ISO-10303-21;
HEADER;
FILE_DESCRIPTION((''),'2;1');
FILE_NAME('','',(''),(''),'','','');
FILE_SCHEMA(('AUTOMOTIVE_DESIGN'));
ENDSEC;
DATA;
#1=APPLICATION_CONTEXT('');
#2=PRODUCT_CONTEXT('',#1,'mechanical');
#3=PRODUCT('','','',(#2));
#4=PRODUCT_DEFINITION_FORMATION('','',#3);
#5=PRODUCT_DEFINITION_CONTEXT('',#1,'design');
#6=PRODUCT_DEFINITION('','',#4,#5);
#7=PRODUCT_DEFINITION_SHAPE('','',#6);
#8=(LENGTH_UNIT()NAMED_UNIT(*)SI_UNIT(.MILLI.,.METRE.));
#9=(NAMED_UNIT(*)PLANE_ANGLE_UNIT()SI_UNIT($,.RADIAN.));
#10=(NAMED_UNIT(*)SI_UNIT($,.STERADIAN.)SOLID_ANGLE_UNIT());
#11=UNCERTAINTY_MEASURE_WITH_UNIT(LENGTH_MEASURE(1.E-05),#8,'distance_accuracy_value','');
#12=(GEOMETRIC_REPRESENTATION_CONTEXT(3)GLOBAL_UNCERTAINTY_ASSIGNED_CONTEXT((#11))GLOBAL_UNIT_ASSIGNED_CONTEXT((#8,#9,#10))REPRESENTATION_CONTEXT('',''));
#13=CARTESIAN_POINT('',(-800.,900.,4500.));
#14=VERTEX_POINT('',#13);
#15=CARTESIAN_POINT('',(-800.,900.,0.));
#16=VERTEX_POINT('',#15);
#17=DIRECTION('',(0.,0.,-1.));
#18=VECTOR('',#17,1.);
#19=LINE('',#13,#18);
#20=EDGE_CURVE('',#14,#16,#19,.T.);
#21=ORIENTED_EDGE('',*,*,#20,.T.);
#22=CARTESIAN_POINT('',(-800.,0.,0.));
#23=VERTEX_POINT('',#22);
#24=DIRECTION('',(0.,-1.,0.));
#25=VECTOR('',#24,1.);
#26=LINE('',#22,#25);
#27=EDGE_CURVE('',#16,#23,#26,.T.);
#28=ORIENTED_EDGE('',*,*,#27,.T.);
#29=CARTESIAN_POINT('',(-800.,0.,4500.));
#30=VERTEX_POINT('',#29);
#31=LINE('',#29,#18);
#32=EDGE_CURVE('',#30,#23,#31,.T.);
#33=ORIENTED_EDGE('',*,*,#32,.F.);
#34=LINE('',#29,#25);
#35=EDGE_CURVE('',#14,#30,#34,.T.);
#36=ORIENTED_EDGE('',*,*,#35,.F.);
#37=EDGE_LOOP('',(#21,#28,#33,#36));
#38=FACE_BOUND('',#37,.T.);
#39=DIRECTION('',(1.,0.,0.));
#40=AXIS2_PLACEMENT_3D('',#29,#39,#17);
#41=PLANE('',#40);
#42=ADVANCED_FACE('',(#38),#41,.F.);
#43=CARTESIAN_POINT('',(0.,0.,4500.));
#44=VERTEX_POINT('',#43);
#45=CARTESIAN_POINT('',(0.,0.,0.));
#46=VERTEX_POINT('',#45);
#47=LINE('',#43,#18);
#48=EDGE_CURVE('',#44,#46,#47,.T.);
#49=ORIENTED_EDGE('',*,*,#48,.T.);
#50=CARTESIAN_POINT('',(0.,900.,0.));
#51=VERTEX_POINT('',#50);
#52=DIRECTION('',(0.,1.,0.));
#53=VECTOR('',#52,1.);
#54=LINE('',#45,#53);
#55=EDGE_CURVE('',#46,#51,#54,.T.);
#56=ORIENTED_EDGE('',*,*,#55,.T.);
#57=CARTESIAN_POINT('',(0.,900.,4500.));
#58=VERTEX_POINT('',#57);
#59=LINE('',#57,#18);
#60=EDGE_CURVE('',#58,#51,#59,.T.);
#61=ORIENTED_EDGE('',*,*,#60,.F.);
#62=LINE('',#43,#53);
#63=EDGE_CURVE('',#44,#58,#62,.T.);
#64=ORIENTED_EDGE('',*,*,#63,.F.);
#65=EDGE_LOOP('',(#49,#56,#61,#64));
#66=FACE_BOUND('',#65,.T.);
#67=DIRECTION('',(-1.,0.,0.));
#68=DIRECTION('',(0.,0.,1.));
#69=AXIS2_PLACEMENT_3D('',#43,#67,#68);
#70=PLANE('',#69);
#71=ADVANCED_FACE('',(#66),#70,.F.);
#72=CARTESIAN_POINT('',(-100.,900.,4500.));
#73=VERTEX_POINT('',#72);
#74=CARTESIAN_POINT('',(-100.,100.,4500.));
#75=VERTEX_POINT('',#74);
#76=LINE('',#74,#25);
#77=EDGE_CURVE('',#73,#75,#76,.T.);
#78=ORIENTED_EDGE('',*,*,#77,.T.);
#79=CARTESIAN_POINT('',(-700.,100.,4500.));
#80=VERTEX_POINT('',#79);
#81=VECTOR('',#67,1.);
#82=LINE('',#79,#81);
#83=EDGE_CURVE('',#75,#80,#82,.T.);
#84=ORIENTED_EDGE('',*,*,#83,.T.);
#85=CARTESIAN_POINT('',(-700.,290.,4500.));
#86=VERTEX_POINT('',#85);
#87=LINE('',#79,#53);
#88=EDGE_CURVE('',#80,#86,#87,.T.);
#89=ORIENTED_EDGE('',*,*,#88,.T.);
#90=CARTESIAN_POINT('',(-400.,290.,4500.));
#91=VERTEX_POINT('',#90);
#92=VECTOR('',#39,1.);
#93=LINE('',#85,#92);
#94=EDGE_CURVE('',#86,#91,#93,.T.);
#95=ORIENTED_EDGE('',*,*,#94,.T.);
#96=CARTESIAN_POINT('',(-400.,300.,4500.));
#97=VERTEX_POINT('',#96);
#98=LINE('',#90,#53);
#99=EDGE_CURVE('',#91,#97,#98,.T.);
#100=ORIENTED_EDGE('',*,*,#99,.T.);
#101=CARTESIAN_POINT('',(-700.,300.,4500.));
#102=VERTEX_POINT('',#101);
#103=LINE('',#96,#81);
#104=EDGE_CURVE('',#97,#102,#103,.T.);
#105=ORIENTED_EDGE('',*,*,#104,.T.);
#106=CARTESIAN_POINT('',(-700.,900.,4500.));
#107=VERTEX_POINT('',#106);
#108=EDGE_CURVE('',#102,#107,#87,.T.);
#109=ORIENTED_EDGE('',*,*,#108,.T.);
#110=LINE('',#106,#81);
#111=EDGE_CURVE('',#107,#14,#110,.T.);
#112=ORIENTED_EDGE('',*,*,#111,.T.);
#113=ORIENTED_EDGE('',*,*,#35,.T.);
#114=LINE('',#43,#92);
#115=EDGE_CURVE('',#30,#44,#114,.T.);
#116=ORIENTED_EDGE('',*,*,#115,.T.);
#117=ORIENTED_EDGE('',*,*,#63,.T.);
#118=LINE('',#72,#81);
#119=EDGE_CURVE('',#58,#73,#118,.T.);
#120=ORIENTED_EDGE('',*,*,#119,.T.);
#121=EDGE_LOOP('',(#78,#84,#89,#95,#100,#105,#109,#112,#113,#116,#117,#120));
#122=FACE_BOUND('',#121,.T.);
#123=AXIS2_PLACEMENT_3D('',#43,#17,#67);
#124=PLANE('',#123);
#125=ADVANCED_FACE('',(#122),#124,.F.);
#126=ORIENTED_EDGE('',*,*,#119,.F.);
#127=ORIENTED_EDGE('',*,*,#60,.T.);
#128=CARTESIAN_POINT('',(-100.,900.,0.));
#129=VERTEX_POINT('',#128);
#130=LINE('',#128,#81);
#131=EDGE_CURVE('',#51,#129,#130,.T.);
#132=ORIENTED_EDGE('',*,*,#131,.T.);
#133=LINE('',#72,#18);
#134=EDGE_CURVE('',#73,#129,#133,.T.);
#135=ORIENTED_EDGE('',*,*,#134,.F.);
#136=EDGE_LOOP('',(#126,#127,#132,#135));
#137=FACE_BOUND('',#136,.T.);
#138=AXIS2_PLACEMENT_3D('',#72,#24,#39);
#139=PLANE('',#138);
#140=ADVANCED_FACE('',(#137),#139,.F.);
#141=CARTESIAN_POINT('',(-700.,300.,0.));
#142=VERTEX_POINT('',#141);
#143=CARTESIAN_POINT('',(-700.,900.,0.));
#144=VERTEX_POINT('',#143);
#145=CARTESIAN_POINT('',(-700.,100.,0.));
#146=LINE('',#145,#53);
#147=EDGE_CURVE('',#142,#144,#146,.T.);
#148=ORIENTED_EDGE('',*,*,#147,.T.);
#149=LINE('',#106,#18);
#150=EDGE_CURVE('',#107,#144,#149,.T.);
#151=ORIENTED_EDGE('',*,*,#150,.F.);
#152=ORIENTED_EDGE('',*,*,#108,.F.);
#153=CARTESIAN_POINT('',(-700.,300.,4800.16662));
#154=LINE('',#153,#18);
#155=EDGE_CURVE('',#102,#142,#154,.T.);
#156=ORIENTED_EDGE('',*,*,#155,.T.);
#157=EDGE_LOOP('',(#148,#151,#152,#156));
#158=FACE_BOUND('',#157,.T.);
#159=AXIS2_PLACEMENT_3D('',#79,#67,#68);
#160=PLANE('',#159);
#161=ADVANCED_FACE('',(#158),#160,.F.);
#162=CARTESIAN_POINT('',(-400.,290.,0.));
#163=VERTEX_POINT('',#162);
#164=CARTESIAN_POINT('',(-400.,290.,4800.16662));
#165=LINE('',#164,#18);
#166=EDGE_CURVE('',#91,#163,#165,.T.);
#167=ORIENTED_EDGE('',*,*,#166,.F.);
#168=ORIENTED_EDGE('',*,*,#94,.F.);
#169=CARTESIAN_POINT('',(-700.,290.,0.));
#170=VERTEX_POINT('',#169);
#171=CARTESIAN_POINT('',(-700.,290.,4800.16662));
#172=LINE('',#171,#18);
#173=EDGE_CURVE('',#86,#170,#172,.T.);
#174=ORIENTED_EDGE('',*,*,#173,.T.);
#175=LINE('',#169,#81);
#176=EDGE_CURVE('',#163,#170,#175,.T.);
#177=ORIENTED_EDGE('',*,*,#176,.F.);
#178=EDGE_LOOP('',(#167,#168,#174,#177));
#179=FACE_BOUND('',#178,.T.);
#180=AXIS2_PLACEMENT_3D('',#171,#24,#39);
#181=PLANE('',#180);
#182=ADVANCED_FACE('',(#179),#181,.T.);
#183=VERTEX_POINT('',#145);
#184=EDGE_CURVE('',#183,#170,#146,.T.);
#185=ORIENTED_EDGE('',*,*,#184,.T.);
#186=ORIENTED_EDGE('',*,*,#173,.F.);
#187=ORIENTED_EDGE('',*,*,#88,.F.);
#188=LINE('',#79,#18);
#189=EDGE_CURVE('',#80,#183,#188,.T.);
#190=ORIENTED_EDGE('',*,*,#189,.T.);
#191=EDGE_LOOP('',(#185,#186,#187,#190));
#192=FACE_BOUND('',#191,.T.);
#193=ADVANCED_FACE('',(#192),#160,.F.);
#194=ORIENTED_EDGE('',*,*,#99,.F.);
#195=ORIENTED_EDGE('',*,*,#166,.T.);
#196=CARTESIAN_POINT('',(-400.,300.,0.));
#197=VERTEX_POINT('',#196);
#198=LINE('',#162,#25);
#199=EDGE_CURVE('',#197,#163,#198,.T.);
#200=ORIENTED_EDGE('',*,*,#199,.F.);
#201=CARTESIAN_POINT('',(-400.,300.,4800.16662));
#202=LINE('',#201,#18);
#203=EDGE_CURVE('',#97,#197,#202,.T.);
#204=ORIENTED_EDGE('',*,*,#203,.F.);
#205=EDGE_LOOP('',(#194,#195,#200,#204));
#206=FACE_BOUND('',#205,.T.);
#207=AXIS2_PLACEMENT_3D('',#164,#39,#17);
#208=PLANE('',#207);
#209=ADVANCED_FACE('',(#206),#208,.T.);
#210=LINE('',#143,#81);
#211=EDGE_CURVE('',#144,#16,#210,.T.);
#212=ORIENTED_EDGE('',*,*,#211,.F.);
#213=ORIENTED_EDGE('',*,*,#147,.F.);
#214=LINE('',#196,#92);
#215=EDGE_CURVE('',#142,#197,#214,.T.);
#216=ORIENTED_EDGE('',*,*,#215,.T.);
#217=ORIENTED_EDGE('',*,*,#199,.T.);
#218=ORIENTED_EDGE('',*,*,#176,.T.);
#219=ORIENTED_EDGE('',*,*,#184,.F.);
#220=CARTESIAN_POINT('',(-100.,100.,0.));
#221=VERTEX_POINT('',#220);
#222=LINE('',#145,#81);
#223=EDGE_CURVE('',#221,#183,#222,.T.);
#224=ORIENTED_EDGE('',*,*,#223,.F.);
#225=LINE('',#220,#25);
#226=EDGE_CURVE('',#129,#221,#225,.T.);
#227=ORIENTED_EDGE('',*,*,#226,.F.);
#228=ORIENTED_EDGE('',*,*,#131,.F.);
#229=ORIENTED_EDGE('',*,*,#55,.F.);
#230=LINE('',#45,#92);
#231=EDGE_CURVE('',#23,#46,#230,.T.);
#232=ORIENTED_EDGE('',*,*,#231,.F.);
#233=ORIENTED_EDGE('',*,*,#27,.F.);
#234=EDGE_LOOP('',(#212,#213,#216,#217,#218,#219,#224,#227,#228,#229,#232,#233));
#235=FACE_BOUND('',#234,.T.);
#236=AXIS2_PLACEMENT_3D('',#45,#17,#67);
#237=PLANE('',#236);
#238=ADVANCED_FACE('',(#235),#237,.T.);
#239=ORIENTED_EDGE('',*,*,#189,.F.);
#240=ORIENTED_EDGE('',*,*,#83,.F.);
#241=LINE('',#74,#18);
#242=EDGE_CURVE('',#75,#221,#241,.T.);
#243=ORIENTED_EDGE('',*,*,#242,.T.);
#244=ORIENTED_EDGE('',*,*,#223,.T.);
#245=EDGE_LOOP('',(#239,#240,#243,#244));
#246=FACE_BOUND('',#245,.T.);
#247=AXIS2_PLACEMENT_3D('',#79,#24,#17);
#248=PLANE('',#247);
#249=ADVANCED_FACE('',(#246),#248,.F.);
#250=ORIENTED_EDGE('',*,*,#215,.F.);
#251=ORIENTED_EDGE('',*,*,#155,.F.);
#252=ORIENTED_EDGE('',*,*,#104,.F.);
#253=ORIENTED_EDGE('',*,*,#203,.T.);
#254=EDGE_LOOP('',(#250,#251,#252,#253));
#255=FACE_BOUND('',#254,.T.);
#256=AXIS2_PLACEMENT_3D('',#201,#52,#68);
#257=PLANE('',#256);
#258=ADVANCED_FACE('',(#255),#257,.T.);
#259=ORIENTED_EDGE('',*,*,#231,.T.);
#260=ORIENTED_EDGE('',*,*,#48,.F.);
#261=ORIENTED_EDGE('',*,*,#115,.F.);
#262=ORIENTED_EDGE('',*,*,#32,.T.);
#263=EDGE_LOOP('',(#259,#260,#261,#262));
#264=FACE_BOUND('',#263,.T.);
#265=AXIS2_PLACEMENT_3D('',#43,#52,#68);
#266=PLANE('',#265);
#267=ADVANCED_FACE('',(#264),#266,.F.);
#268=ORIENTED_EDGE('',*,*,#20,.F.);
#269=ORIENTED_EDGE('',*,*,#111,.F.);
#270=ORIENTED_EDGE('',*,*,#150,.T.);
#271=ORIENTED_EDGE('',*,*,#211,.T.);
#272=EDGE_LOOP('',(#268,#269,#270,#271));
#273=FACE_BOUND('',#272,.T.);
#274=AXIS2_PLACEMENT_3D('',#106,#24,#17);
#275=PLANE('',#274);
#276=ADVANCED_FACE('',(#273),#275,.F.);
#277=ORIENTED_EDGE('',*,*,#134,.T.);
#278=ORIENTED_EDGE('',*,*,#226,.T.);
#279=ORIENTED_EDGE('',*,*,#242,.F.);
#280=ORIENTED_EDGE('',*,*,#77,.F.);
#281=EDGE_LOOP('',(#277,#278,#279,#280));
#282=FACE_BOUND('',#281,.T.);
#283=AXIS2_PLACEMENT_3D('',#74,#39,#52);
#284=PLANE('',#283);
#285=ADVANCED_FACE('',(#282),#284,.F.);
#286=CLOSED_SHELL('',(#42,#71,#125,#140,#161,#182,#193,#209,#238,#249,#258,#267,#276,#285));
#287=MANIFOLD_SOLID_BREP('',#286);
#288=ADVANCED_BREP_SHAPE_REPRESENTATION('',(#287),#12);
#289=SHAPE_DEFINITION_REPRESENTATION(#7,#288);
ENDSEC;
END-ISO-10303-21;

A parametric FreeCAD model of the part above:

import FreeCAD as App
import Part
import Sketcher
from FreeCAD import Vector
Q = App.Units.Quantity


def add_polygon(sketch, points):
    """Adds a closed chain of lines whose ends are joined by coincident constraints."""
    first, n = sketch.GeometryCount, len(points)
    for a, b in zip(points, points[1:] + points[:1]):
        sketch.addGeometry(Part.LineSegment(App.Vector(*a, 0), App.Vector(*b, 0)), False)
    for i in range(n):
        sketch.addConstraint(Sketcher.Constraint("Coincident", first + i, 2, first + (i + 1) % n, 1))

doc = App.newDocument("Part")
body = doc.addObject("PartDesign::Body", "Body")

sketch1 = body.newObject("Sketcher::SketchObject", "Sketch")
sketch1.AttachmentSupport = (doc.getObject("XY_Plane"), [""])
sketch1.MapMode = "FlatFace"
add_polygon(sketch1, [(-800, 0), (0, 0), (0, 900), (-100, 900), (-100, 100), (-700, 100), (-700, 900), (-800, 900)])
sketch1.addConstraint(Sketcher.Constraint("Horizontal", 0))
sketch1.addConstraint(Sketcher.Constraint("Vertical", 1))
sketch1.addConstraint(Sketcher.Constraint("Horizontal", 2))
sketch1.addConstraint(Sketcher.Constraint("Vertical", 3))
sketch1.addConstraint(Sketcher.Constraint("Horizontal", 4))
sketch1.addConstraint(Sketcher.Constraint("Vertical", 5))
sketch1.addConstraint(Sketcher.Constraint("Horizontal", 6))
sketch1.addConstraint(Sketcher.Constraint("Vertical", 7))
sketch1.addConstraint(Sketcher.Constraint("Coincident", 0, 2, -1, 1))
sketch1.addConstraint(Sketcher.Constraint("Horizontal", 2, 2, 5, 2))
sketch1.addConstraint(Sketcher.Constraint("Equal", 2, 6))
sketch1.addConstraint(Sketcher.Constraint("Equal", 0, 3))
sketch1.addConstraint(Sketcher.Constraint("DistanceX", 0, 1, 0, 2, Q("800 mm")))
sketch1.addConstraint(Sketcher.Constraint("DistanceX", 2, 2, 2, 1, Q("100 mm")))
sketch1.addConstraint(Sketcher.Constraint("DistanceY", 1, 1, 1, 2, Q("900 mm")))
pad1 = body.newObject("PartDesign::Pad", "Pad")
pad1.Profile = sketch1
pad1.Length = 4500

sketch2 = body.newObject("Sketcher::SketchObject", "Sketch001")
sketch2.AttachmentSupport = (doc.getObject("XY_Plane"), [""])
sketch2.MapMode = "FlatFace"
add_polygon(sketch2, [(-400, 300), (-400, 290), (-700, 290), (-700, 300)])
sketch2.addConstraint(Sketcher.Constraint("Vertical", 0))
sketch2.addConstraint(Sketcher.Constraint("Horizontal", 1))
sketch2.addConstraint(Sketcher.Constraint("Vertical", 2))
sketch2.addConstraint(Sketcher.Constraint("Horizontal", 3))
sketch2.addConstraint(Sketcher.Constraint("DistanceX", 1, 2, 1, 1, Q("300 mm")))
sketch2.addConstraint(Sketcher.Constraint("DistanceY", 0, 2, 0, 1, Q("10 mm")))
sketch2.addConstraint(Sketcher.Constraint("DistanceX", 0, 2, -1, 1, Q("400 mm")))
sketch2.addConstraint(Sketcher.Constraint("DistanceY", -1, 1, 0, 2, Q("290 mm")))
pad2 = body.newObject("PartDesign::Pad", "Pad001")
pad2.Profile = sketch2
pad2.Length = 4500

doc.recompute()
